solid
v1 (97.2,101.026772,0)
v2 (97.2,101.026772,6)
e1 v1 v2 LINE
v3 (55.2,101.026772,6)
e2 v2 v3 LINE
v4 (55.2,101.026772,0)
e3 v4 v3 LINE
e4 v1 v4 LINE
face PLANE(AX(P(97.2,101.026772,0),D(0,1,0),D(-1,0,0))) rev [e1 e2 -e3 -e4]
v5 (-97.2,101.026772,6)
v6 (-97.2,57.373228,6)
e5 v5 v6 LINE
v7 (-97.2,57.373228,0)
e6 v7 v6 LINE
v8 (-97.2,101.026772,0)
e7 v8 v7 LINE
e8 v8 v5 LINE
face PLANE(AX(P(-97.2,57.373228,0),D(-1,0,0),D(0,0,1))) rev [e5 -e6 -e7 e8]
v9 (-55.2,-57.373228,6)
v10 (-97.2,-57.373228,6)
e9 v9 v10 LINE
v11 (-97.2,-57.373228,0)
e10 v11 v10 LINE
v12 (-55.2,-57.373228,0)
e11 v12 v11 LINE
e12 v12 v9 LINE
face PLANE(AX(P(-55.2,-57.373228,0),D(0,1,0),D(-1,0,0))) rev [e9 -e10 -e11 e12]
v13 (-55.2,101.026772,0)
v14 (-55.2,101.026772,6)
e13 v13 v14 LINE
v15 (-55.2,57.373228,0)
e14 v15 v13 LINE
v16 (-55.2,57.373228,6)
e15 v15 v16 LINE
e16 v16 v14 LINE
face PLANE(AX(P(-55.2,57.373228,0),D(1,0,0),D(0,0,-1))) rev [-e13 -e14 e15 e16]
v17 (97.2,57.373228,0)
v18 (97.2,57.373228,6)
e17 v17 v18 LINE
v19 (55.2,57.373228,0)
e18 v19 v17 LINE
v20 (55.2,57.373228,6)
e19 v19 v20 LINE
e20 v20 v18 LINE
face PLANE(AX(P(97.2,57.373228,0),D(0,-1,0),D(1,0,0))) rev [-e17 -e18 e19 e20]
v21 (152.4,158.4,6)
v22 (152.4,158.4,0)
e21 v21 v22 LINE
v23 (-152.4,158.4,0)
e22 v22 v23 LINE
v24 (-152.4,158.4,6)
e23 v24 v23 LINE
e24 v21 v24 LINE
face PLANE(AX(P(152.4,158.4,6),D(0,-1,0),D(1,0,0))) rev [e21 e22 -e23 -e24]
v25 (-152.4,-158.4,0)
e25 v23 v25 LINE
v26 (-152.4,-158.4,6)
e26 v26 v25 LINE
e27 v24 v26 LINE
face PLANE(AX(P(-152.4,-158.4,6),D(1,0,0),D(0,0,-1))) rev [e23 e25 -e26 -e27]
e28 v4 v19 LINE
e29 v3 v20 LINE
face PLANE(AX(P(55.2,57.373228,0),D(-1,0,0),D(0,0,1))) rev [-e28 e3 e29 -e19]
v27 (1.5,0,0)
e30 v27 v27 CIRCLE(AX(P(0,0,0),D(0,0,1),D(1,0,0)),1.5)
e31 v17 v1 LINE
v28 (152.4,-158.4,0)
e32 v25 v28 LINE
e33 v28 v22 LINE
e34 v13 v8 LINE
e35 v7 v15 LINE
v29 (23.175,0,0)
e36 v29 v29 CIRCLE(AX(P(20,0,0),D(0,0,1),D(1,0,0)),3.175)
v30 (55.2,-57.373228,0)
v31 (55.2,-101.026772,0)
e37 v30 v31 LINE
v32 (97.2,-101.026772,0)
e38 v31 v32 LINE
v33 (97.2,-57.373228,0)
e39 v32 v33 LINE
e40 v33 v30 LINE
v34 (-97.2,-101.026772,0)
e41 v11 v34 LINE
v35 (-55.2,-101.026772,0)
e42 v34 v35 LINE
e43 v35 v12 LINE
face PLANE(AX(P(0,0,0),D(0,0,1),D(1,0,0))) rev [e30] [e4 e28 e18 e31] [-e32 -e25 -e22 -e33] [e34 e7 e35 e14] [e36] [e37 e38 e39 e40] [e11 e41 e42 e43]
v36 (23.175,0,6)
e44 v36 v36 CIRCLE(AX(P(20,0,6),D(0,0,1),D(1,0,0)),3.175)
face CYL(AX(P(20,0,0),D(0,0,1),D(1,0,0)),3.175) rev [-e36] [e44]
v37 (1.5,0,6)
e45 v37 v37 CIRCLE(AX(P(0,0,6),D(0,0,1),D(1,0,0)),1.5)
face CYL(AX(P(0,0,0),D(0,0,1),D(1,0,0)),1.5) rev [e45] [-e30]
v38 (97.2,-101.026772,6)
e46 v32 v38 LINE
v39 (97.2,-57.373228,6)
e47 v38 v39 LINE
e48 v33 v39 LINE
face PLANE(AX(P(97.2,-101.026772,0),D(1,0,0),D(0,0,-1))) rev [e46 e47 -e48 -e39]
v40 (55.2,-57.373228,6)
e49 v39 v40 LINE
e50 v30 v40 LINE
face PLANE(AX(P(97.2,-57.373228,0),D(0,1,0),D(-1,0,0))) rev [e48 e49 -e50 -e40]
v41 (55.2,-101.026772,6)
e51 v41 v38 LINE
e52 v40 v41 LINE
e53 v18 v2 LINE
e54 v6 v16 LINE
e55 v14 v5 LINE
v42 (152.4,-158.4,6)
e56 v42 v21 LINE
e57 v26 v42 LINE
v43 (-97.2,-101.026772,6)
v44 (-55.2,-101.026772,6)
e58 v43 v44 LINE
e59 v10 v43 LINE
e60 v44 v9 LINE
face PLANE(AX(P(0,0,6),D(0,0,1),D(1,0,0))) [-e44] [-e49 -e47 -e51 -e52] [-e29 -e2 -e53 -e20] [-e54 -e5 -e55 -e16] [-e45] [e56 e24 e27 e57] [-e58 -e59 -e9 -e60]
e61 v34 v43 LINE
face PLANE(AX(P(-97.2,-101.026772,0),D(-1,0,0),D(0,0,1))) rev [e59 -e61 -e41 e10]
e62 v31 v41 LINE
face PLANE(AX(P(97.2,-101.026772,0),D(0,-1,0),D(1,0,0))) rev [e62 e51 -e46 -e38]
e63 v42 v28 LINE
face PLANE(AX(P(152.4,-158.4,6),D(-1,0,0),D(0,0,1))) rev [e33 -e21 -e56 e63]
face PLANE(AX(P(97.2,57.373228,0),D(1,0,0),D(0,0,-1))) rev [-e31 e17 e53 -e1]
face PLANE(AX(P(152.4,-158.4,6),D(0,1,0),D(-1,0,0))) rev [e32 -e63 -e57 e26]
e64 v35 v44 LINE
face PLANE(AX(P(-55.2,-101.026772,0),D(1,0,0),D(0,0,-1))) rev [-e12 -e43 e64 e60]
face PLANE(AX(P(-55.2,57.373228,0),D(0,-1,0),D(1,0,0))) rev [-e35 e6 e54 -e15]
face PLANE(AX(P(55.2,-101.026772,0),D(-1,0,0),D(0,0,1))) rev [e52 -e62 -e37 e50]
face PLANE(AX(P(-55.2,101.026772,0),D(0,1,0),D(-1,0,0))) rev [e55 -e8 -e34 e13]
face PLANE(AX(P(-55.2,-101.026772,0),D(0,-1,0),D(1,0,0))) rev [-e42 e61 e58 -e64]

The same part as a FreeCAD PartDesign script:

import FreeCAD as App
import Part
import Sketcher

V = App.Vector
Q = App.Units.Quantity


def add_polygon(sketch, points):
    """Adds a closed chain of lines whose ends are joined by coincident constraints."""
    first, n = sketch.GeometryCount, len(points)
    for a, b in zip(points, points[1:] + points[:1]):
        sketch.addGeometry(Part.LineSegment(App.Vector(*a, 0), App.Vector(*b, 0)), False)
    for i in range(n):
        sketch.addConstraint(Sketcher.Constraint("Coincident", first + i, 2, first + (i + 1) % n, 1))

doc = App.newDocument("Part")
body = doc.addObject("PartDesign::Body", "Body")

sketch1 = body.newObject("Sketcher::SketchObject", "Sketch")
sketch1.AttachmentSupport = (doc.getObject("XY_Plane"), [""])
sketch1.MapMode = "FlatFace"
add_polygon(sketch1, [(-152.4, 158.4), (-152.4, -158.4), (152.4, -158.4), (152.4, 158.4)])
sketch1.addConstraint([
    Sketcher.Constraint("Vertical", 0),
    Sketcher.Constraint("Horizontal", 1),
    Sketcher.Constraint("Vertical", 2),
    Sketcher.Constraint("Horizontal", 3),
    Sketcher.Constraint("Symmetric", 0, 2, 2, 2, -1, 1),
    Sketcher.Constraint("DistanceX", 1, 1, 1, 2, Q("304.8 mm")),
    Sketcher.Constraint("DistanceY", 0, 2, 0, 1, Q("316.8 mm")),
])
pad1 = body.newObject("PartDesign::Pad", "Pad")
pad1.Profile = sketch1
pad1.Length = 6

sketch2 = body.newObject("Sketcher::SketchObject", "Sketch001")
sketch2.AttachmentSupport = (doc.getObject("XY_Plane"), [""])
sketch2.MapMode = "FlatFace"
sketch2.AttachmentOffset = App.Placement(V(0, 0, 6), App.Rotation())
add_polygon(sketch2, [(-97.2, 101.026772), (-97.2, 57.373228), (-55.2, 57.373228), (-55.2, 101.026772)])
add_polygon(sketch2, [(55.2, 101.026772), (55.2, 57.373228), (97.2, 57.373228), (97.2, 101.026772)])
add_polygon(sketch2, [(55.2, -57.373228), (55.2, -101.026772), (97.2, -101.026772), (97.2, -57.373228)])
add_polygon(sketch2, [(-97.2, -57.373228), (-97.2, -101.026772), (-55.2, -101.026772), (-55.2, -57.373228)])
sketch2.addConstraint([
    Sketcher.Constraint("Vertical", 0),
    Sketcher.Constraint("Horizontal", 1),
    Sketcher.Constraint("Vertical", 2),
    Sketcher.Constraint("Horizontal", 3),
    Sketcher.Constraint("Vertical", 4),
    Sketcher.Constraint("Horizontal", 5),
    Sketcher.Constraint("Vertical", 6),
    Sketcher.Constraint("Horizontal", 7),
    Sketcher.Constraint("Vertical", 8),
    Sketcher.Constraint("Horizontal", 9),
    Sketcher.Constraint("Vertical", 10),
    Sketcher.Constraint("Horizontal", 11),
    Sketcher.Constraint("Vertical", 12),
    Sketcher.Constraint("Horizontal", 13),
    Sketcher.Constraint("Vertical", 14),
    Sketcher.Constraint("Horizontal", 15),
    Sketcher.Constraint("Symmetric", 2, 2, 8, 2, -1, 1),
    Sketcher.Constraint("Symmetric", 0, 2, 10, 2, -1, 1),
    Sketcher.Constraint("Symmetric", 6, 2, 12, 2, -1, 1),
    Sketcher.Constraint("Symmetric", 4, 2, 14, 2, -1, 1),
    Sketcher.Constraint("Symmetric", 1, 2, 4, 2, -2),
    Sketcher.Constraint("Symmetric", 3, 2, 6, 2, -2),
    Sketcher.Constraint("DistanceX", 1, 1, 1, 2, Q("42 mm")),
    Sketcher.Constraint("DistanceX", 0, 2, -1, 1, Q("97.2 mm")),
    Sketcher.Constraint("DistanceY", 8, 2, 4, 2, Q("158.4 mm")),
    Sketcher.Constraint("DistanceY", 0, 2, 0, 1, Q("43.653543 mm")),
])
pocket1 = body.newObject("PartDesign::Pocket", "Pocket")
pocket1.Profile = sketch2
pocket1.Type = "ThroughAll"

sketch3 = body.newObject("Sketcher::SketchObject", "Sketch002")
sketch3.AttachmentSupport = (doc.getObject("XY_Plane"), [""])
sketch3.MapMode = "FlatFace"
sketch3.AttachmentOffset = App.Placement(V(0, 0, 6), App.Rotation())
sketch3.addGeometry(Part.Circle(V(0, 0, 0), V(0, 0, 1), 1.5), False)
sketch3.addConstraint([
    Sketcher.Constraint("Coincident", 0, 3, -1, 1),
    Sketcher.Constraint("Diameter", 0, Q("3 mm")),
])
pocket2 = body.newObject("PartDesign::Pocket", "Pocket001")
pocket2.Profile = sketch3
pocket2.Type = "ThroughAll"

sketch4 = body.newObject("Sketcher::SketchObject", "Sketch003")
sketch4.AttachmentSupport = (doc.getObject("XY_Plane"), [""])
sketch4.MapMode = "FlatFace"
sketch4.AttachmentOffset = App.Placement(V(0, 0, 6), App.Rotation())
sketch4.addGeometry(Part.Circle(V(20, 0, 0), V(0, 0, 1), 3.175), False)
sketch4.addConstraint([
    Sketcher.Constraint("PointOnObject", 0, 3, -1),
    Sketcher.Constraint("Diameter", 0, Q("6.35 mm")),
    Sketcher.Constraint("DistanceX", -1, 1, 0, 3, Q("20 mm")),
])
pocket3 = body.newObject("PartDesign::Pocket", "Pocket002")
pocket3.Profile = sketch4
pocket3.Type = "ThroughAll"

doc.recompute()
